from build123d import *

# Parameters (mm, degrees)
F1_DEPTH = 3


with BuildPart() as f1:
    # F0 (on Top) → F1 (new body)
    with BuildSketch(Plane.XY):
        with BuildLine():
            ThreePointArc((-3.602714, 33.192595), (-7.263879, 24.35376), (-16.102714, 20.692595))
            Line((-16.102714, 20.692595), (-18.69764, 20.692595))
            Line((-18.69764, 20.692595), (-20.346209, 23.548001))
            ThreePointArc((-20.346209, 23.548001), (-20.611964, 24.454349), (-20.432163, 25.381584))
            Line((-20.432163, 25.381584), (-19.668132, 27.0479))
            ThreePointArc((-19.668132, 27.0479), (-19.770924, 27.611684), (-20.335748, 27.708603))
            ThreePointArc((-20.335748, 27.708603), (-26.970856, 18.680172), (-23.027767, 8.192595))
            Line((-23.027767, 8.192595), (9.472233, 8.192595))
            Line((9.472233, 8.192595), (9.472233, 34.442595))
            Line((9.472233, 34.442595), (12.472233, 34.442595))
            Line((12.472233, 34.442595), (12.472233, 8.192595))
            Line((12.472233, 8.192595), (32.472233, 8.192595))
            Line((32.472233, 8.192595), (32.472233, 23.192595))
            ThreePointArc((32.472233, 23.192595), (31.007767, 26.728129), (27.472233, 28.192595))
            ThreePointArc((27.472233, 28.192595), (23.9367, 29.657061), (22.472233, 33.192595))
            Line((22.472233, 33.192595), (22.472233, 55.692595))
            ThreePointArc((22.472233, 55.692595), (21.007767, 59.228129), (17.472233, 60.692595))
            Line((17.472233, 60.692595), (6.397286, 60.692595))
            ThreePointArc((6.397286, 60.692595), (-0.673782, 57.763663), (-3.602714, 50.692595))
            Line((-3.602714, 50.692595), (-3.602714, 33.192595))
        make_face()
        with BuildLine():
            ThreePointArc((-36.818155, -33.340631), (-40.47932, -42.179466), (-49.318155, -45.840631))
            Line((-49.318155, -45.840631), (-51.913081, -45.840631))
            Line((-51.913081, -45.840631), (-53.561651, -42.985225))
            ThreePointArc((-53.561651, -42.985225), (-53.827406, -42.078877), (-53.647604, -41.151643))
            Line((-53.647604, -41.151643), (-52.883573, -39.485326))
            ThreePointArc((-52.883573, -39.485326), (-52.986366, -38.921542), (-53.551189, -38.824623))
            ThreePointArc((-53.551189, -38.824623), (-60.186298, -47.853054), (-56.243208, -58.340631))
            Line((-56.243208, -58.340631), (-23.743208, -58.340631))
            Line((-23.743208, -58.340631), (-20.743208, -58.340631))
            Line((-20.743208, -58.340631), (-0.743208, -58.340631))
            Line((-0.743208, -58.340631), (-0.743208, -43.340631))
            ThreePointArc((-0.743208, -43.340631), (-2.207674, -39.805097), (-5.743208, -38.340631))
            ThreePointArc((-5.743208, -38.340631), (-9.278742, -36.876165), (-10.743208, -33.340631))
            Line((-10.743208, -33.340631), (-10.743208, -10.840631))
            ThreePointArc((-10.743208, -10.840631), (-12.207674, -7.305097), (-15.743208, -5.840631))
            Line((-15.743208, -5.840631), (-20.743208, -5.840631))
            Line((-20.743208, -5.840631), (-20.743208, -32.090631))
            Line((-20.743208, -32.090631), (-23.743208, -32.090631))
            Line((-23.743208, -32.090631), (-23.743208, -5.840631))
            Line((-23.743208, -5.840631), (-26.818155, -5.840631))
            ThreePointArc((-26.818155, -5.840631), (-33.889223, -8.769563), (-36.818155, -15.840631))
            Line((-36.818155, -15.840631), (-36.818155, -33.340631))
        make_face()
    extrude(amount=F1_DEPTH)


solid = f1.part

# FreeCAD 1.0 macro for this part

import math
import FreeCAD as App
import Part
import Sketcher

V = App.Vector
Q = App.Units.Quantity

doc = App.newDocument("Part")
body = doc.addObject("PartDesign::Body", "Body")
body.AllowCompound = True

# Sketch on XY plane
sketch1 = body.newObject("Sketcher::SketchObject", "Sketch")
sketch1.AttachmentSupport = (doc.getObject("XY_Plane"), [""])
sketch1.MapMode = "FlatFace"
sketch1.addGeometry([
    Part.ArcOfCircle(Part.Circle(V(-16.1, 33.19, 0), V(0, 0, 1), 12.5), math.radians(-90), math.radians(0)),  # 0
    Part.LineSegment(V(-16.1, 20.69, 0), V(-18.7, 20.69, 0)),  # 1
    Part.LineSegment(V(-18.7, 20.69, 0), V(-20.35, 23.55, 0)),  # 2
    Part.ArcOfCircle(Part.Circle(V(-18.61, 24.55, 0), V(0, 0, 1), 2), math.radians(155), math.radians(210)),  # 3
    Part.LineSegment(V(-20.43, 25.38, 0), V(-19.67, 27.05, 0)),  # 4
    Part.ArcOfCircle(Part.Circle(V(-20.12, 27.26, 0), V(0, 0, 1), 0.5), math.radians(-25), math.radians(115)),  # 5
    Part.ArcOfCircle(Part.Circle(V(-15.32, 17.07, 0), V(0, 0, 1), 11.76), math.radians(115), math.radians(229)),  # 6
    Part.LineSegment(V(-23.03, 8.19, 0), V(9.47, 8.19, 0)),  # 7
    Part.LineSegment(V(9.47, 8.19, 0), V(9.47, 34.44, 0)),  # 8
    Part.LineSegment(V(9.47, 34.44, 0), V(12.47, 34.44, 0)),  # 9
    Part.LineSegment(V(12.47, 34.44, 0), V(12.47, 8.19, 0)),  # 10
    Part.LineSegment(V(12.47, 8.19, 0), V(32.47, 8.19, 0)),  # 11
    Part.LineSegment(V(32.47, 8.19, 0), V(32.47, 23.19, 0)),  # 12
    Part.ArcOfCircle(Part.Circle(V(27.47, 23.19, 0), V(0, 0, 1), 5), math.radians(0), math.radians(90)),  # 13
    Part.ArcOfCircle(Part.Circle(V(27.47, 33.19, 0), V(0, 0, 1), 5), math.radians(-180), math.radians(-90)),  # 14
    Part.LineSegment(V(22.47, 33.19, 0), V(22.47, 55.69, 0)),  # 15
    Part.ArcOfCircle(Part.Circle(V(17.47, 55.69, 0), V(0, 0, 1), 5), math.radians(0), math.radians(90)),  # 16
    Part.LineSegment(V(17.47, 60.69, 0), V(6.4, 60.69, 0)),  # 17
    Part.ArcOfCircle(Part.Circle(V(6.4, 50.69, 0), V(0, 0, 1), 10), math.radians(90), math.radians(180)),  # 18
    Part.LineSegment(V(-3.6, 50.69, 0), V(-3.6, 33.19, 0)),  # 19
    Part.ArcOfCircle(Part.Circle(V(-49.32, -33.34, 0), V(0, 0, 1), 12.5), math.radians(-90), math.radians(0)),  # 20
    Part.LineSegment(V(-49.32, -45.84, 0), V(-51.91, -45.84, 0)),  # 21
    Part.LineSegment(V(-51.91, -45.84, 0), V(-53.56, -42.99, 0)),  # 22
    Part.ArcOfCircle(Part.Circle(V(-51.83, -41.99, 0), V(0, 0, 1), 2), math.radians(155), math.radians(210)),  # 23
    Part.LineSegment(V(-53.65, -41.15, 0), V(-52.88, -39.49, 0)),  # 24
    Part.ArcOfCircle(Part.Circle(V(-53.34, -39.28, 0), V(0, 0, 1), 0.5), math.radians(-25), math.radians(115)),  # 25
    Part.ArcOfCircle(Part.Circle(V(-48.54, -49.46, 0), V(0, 0, 1), 11.76), math.radians(115), math.radians(229)),  # 26
    Part.LineSegment(V(-56.24, -58.34, 0), V(-0.74, -58.34, 0)),  # 27
    Part.LineSegment(V(-0.74, -58.34, 0), V(-0.74, -43.34, 0)),  # 28
    Part.ArcOfCircle(Part.Circle(V(-5.74, -43.34, 0), V(0, 0, 1), 5), math.radians(0), math.radians(90)),  # 29
    Part.ArcOfCircle(Part.Circle(V(-5.74, -33.34, 0), V(0, 0, 1), 5), math.radians(180), math.radians(270)),  # 30
    Part.LineSegment(V(-10.74, -33.34, 0), V(-10.74, -10.84, 0)),  # 31
    Part.ArcOfCircle(Part.Circle(V(-15.74, -10.84, 0), V(0, 0, 1), 5), math.radians(0), math.radians(90)),  # 32
    Part.LineSegment(V(-15.74, -5.84, 0), V(-20.74, -5.84, 0)),  # 33
    Part.LineSegment(V(-20.74, -5.84, 0), V(-20.74, -32.09, 0)),  # 34
    Part.LineSegment(V(-20.74, -32.09, 0), V(-23.74, -32.09, 0)),  # 35
    Part.LineSegment(V(-23.74, -32.09, 0), V(-23.74, -5.84, 0)),  # 36
    Part.LineSegment(V(-23.74, -5.84, 0), V(-26.82, -5.84, 0)),  # 37
    Part.ArcOfCircle(Part.Circle(V(-26.82, -15.84, 0), V(0, 0, 1), 10), math.radians(90), math.radians(180)),  # 38
    Part.LineSegment(V(-36.82, -15.84, 0), V(-36.82, -33.34, 0)),  # 39
], False)
sketch1.addConstraint([
    Sketcher.Constraint("Tangent", 0, 1, 1, 1),
    Sketcher.Constraint("Coincident", 1, 2, 2, 1),
    Sketcher.Constraint("Tangent", 2, 2, 3, 2),
    Sketcher.Constraint("Tangent", 3, 1, 4, 1),
    Sketcher.Constraint("Tangent", 4, 2, 5, 1),
    Sketcher.Constraint("Tangent", 5, 2, 6, 1),
    Sketcher.Constraint("Coincident", 6, 2, 7, 1),
    Sketcher.Constraint("Coincident", 7, 2, 8, 1),
    Sketcher.Constraint("Coincident", 8, 2, 9, 1),
    Sketcher.Constraint("Coincident", 9, 2, 10, 1),
    Sketcher.Constraint("Coincident", 10, 2, 11, 1),
    Sketcher.Constraint("Coincident", 11, 2, 12, 1),
    Sketcher.Constraint("Tangent", 12, 2, 13, 1),
    Sketcher.Constraint("Tangent", 13, 2, 14, 2),
    Sketcher.Constraint("Tangent", 14, 1, 15, 1),
    Sketcher.Constraint("Tangent", 15, 2, 16, 1),
    Sketcher.Constraint("Tangent", 16, 2, 17, 1),
    Sketcher.Constraint("Tangent", 17, 2, 18, 1),
    Sketcher.Constraint("Tangent", 18, 2, 19, 1),
    Sketcher.Constraint("Tangent", 19, 2, 0, 2),
    Sketcher.Constraint("Tangent", 20, 1, 21, 1),
    Sketcher.Constraint("Coincident", 21, 2, 22, 1),
    Sketcher.Constraint("Tangent", 22, 2, 23, 2),
    Sketcher.Constraint("Tangent", 23, 1, 24, 1),
    Sketcher.Constraint("Tangent", 24, 2, 25, 1),
    Sketcher.Constraint("Tangent", 25, 2, 26, 1),
    Sketcher.Constraint("Coincident", 26, 2, 27, 1),
    Sketcher.Constraint("Coincident", 27, 2, 28, 1),
    Sketcher.Constraint("Tangent", 28, 2, 29, 1),
    Sketcher.Constraint("Tangent", 29, 2, 30, 2),
    Sketcher.Constraint("Tangent", 30, 1, 31, 1),
    Sketcher.Constraint("Tangent", 31, 2, 32, 1),
    Sketcher.Constraint("Tangent", 32, 2, 33, 1),
    Sketcher.Constraint("Coincident", 33, 2, 34, 1),
    Sketcher.Constraint("Coincident", 34, 2, 35, 1),
    Sketcher.Constraint("Coincident", 35, 2, 36, 1),
    Sketcher.Constraint("Coincident", 36, 2, 37, 1),
    Sketcher.Constraint("Tangent", 37, 2, 38, 1),
    Sketcher.Constraint("Tangent", 38, 2, 39, 1),
    Sketcher.Constraint("Tangent", 39, 2, 20, 2),
    Sketcher.Constraint("Horizontal", 1),
    Sketcher.Constraint("Horizontal", 7),
    Sketcher.Constraint("Vertical", 8),
    Sketcher.Constraint("Horizontal", 9),
    Sketcher.Constraint("Vertical", 10),
    Sketcher.Constraint("Horizontal", 11),
    Sketcher.Constraint("Vertical", 12),
    Sketcher.Constraint("Vertical", 15),
    Sketcher.Constraint("Horizontal", 17),
    Sketcher.Constraint("Vertical", 19),
    Sketcher.Constraint("Horizontal", 21),
    Sketcher.Constraint("Horizontal", 27),
    Sketcher.Constraint("Vertical", 28),
    Sketcher.Constraint("Vertical", 31),
    Sketcher.Constraint("Horizontal", 33),
    Sketcher.Constraint("Vertical", 34),
    Sketcher.Constraint("Horizontal", 35),
    Sketcher.Constraint("Vertical", 36),
    Sketcher.Constraint("Horizontal", 37),
    Sketcher.Constraint("Vertical", 39),
    Sketcher.Constraint("Equal", 13, 14),
    Sketcher.Constraint("Equal", 14, 16),
    Sketcher.Constraint("Equal", 0, 20),
    Sketcher.Constraint("Equal", 5, 25),
    Sketcher.Constraint("Equal", 6, 26),
    Sketcher.Constraint("Equal", 16, 29),
    Sketcher.Constraint("Equal", 29, 30),
    Sketcher.Constraint("Equal", 30, 32),
    Sketcher.Constraint("Equal", 18, 38),
    Sketcher.Constraint("Parallel", 2, 22),
    Sketcher.Constraint("Parallel", 4, 24),
    Sketcher.Constraint("Horizontal", 20, 3, 30, 3),
    Sketcher.Constraint("Horizontal", 7, 2, 10, 2),
    Sketcher.Constraint("Horizontal", 0, 3, 14, 1),
    Sketcher.Constraint("Horizontal", 33, 2, 36, 2),
    Sketcher.Constraint("Vertical", 13, 3, 14, 3),
    Sketcher.Constraint("Vertical", 29, 3, 30, 3),
    Sketcher.Constraint("Equal", 1, 21),
    Sketcher.Constraint("Equal", 9, 35),
    Sketcher.Constraint("Equal", 12, 28),
    Sketcher.Constraint("Equal", 15, 31),
    Sketcher.Constraint("Equal", 10, 34),
    Sketcher.Constraint("Equal", 2, 22),
    Sketcher.Constraint("Equal", 4, 24),
    Sketcher.Constraint("Radius", 13, Q("5 mm")),
    Sketcher.Constraint("Radius", 18, Q("9.999999 mm")),
    Sketcher.Constraint("Radius", 23, Q("1.999999 mm")),
    Sketcher.Constraint("Radius", 0, Q("12.499999 mm")),
    Sketcher.Constraint("Radius", 5, Q("0.5 mm")),
    Sketcher.Constraint("DistanceX", 9, 1, 9, 2, Q("3 mm")),
    Sketcher.Constraint("DistanceX", 11, 1, 11, 2, Q("20 mm")),
    Sketcher.Constraint("DistanceX", 33, 2, 33, 1, Q("5 mm")),
    Sketcher.Constraint("DistanceY", 12, 1, 12, 2, Q("15 mm")),
    Sketcher.Constraint("Angle", 2, Q("119.999994 deg")),
    Sketcher.Constraint("DistanceX", 7, 1, 7, 2, Q("32.5 mm")),
    Sketcher.Constraint("DistanceX", 27, 1, 27, 2, Q("55.5 mm")),
    Sketcher.Constraint("DistanceY", 15, 1, 15, 2, Q("22.5 mm")),
    Sketcher.Constraint("DistanceY", 2, 2, 3, 3, Q("1.000001 mm")),
    Sketcher.Constraint("DistanceY", 8, 1, 8, 2, Q("26.25 mm")),
    Sketcher.Constraint("DistanceY", -1, 1, 3, 3, Q("24.548002 mm")),
    Sketcher.Constraint("Radius", 6, Q("11.756228 mm")),
    Sketcher.Constraint("DistanceX", 20, 3, 3, 3, Q("30.704001 mm")),
    Sketcher.Constraint("DistanceX", 6, 3, -1, 1, Q("15.324901 mm")),
    Sketcher.Constraint("DistanceX", 23, 3, -1, 1, Q("51.829601 mm")),
    Sketcher.Constraint("DistanceY", -1, 1, 4, 2, Q("27.0479 mm")),
    Sketcher.Constraint("DistanceY", 5, 3, 0, 3, Q("5.936298 mm")),
    Sketcher.Constraint("DistanceX", 5, 3, 4, 2, Q("0.454501 mm")),
    Sketcher.Constraint("DistanceX", 1, 2, 1, 1, Q("2.594926 mm")),
    Sketcher.Constraint("DistanceX", 37, 2, 37, 1, Q("3.074947 mm")),
    Sketcher.Constraint("DistanceY", 20, 3, -1, 1, Q("33.340632 mm")),
])
pad1 = body.newObject("PartDesign::Pad", "Pad")
pad1.Profile = sketch1
pad1.Length = 3

doc.recompute()
